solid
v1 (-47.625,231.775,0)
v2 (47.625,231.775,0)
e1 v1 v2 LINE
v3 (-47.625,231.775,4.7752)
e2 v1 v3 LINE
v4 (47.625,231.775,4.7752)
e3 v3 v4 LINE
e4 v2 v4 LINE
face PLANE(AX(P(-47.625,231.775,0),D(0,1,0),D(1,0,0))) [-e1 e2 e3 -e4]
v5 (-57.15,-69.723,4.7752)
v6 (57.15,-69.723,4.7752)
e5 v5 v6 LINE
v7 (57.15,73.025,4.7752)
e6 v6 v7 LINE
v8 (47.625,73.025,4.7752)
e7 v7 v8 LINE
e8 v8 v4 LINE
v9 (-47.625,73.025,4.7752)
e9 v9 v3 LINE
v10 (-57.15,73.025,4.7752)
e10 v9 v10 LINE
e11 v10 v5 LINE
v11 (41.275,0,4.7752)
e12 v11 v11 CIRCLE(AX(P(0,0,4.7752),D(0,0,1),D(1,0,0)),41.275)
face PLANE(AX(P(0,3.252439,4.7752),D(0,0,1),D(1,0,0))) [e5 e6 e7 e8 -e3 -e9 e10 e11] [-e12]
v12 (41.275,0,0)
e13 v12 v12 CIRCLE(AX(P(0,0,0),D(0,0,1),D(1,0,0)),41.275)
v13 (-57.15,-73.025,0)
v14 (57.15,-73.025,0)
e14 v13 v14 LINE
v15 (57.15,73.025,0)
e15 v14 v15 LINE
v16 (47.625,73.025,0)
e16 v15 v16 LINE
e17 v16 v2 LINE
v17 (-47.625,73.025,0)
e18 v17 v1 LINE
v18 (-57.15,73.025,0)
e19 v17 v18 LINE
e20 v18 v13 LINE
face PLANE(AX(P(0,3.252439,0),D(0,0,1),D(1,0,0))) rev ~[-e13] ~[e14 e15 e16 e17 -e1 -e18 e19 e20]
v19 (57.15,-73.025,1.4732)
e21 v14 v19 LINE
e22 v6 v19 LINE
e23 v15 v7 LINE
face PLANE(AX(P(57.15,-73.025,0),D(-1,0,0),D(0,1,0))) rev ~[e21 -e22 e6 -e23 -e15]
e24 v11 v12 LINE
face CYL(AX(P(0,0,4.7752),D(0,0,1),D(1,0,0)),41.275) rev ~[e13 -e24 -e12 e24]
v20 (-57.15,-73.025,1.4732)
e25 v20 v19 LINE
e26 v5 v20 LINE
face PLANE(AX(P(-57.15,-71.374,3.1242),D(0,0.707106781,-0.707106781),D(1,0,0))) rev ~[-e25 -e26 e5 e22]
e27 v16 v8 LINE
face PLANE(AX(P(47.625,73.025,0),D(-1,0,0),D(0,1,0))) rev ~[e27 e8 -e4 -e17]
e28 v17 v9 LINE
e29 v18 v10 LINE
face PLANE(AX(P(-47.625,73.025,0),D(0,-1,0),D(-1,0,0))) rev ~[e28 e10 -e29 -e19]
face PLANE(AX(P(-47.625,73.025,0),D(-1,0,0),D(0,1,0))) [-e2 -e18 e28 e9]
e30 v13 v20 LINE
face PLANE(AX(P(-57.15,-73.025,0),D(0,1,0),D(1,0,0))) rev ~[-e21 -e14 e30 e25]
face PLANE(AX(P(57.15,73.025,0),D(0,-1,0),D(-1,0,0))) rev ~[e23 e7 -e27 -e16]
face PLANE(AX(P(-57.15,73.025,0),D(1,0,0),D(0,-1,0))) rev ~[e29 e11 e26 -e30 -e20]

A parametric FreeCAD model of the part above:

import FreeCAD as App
import Part
import Sketcher
from FreeCAD import Vector
Q = App.Units.Quantity


def edges_at(feature, points):
    """Names of the edges that pass closest to the given points."""
    edges = feature.Shape.Edges
    near = lambda p: min(range(len(edges)), key=lambda i: edges[i].distToShape(Part.Vertex(*p))[0])
    return sorted({f"Edge{near(p) + 1}" for p in points})

doc = App.newDocument("Part")
params = doc.addObject("Spreadsheet::Sheet", "Params")
for row, (alias, value) in enumerate([
    ("sketch1_width", "4.5 in"),
    ("sketch1_width2", "3.75 in"),
    ("sketch1_height", "6.25 in"),
    ("pad1_length", "0.188 in"),
    ("sketch2_diameter", "3.25 in"),
    ("pocket1_length", "1 in"),
    ("chamfer_size", "0.13 in"),
], start=1):
    params.set(f"A{row}", alias)
    params.set(f"B{row}", "=" + value)
    params.setAlias(f"B{row}", alias)

body = doc.addObject("PartDesign::Body", "Body")

# Sketch on XY plane
sketch1 = doc.addObject("Sketcher::SketchObject", "Sketch")
body.addObject(sketch1)
sketch1.AttachmentSupport = (doc.XY_Plane, [""])
sketch1.MapMode = "FlatFace"
sketch1.addGeometry(Part.LineSegment(Vector(57, 73, 0), Vector(48, 73, 0)), False)
sketch1.addGeometry(Part.LineSegment(Vector(48, 73, 0), Vector(48, 232, 0)), False)
sketch1.addGeometry(Part.LineSegment(Vector(48, 232, 0), Vector(-48, 232, 0)), False)
sketch1.addGeometry(Part.LineSegment(Vector(-48, 232, 0), Vector(-48, 73, 0)), False)
sketch1.addGeometry(Part.LineSegment(Vector(-48, 73, 0), Vector(-57, 73, 0)), False)
sketch1.addGeometry(Part.LineSegment(Vector(-57, 73, 0), Vector(-57, -73, 0)), False)
sketch1.addGeometry(Part.LineSegment(Vector(-57, -73, 0), Vector(57, -73, 0)), False)
sketch1.addGeometry(Part.LineSegment(Vector(57, -73, 0), Vector(57, 73, 0)), False)
sketch1.addConstraint(Sketcher.Constraint("Coincident", 0, 2, 1, 1))
sketch1.addConstraint(Sketcher.Constraint("Coincident", 1, 2, 2, 1))
sketch1.addConstraint(Sketcher.Constraint("Coincident", 2, 2, 3, 1))
sketch1.addConstraint(Sketcher.Constraint("Coincident", 3, 2, 4, 1))
sketch1.addConstraint(Sketcher.Constraint("Coincident", 4, 2, 5, 1))
sketch1.addConstraint(Sketcher.Constraint("Coincident", 5, 2, 6, 1))
sketch1.addConstraint(Sketcher.Constraint("Coincident", 6, 2, 7, 1))
sketch1.addConstraint(Sketcher.Constraint("Coincident", 7, 2, 0, 1))
sketch1.addConstraint(Sketcher.Constraint("Horizontal", 0))
sketch1.addConstraint(Sketcher.Constraint("Vertical", 1))
sketch1.addConstraint(Sketcher.Constraint("Horizontal", 2))
sketch1.addConstraint(Sketcher.Constraint("Vertical", 3))
sketch1.addConstraint(Sketcher.Constraint("Horizontal", 4))
sketch1.addConstraint(Sketcher.Constraint("Vertical", 5))
sketch1.addConstraint(Sketcher.Constraint("Horizontal", 6))
sketch1.addConstraint(Sketcher.Constraint("Vertical", 7))
sketch1.addConstraint(Sketcher.Constraint("Symmetric", 4, 2, 6, 2, -1, 1))
sketch1.addConstraint(Sketcher.Constraint("Symmetric", 0, 2, 3, 2, -2))
sketch1.addConstraint(Sketcher.Constraint("DistanceX", 6, 1, 6, 2, Q("4.5 in")))
sketch1.addConstraint(Sketcher.Constraint("DistanceY", 5, 2, 2, 2, Q("12 in")))
sketch1.addConstraint(Sketcher.Constraint("DistanceX", 2, 2, 2, 1, Q("3.75 in")))
sketch1.addConstraint(Sketcher.Constraint("DistanceY", 1, 1, 1, 2, Q("6.25 in")))
sketch1.setExpression("Constraints[18]", "Params.sketch1_width")
sketch1.setExpression("Constraints[20]", "Params.sketch1_width2")
sketch1.setExpression("Constraints[21]", "Params.sketch1_height")
pad1 = doc.addObject("PartDesign::Pad", "Pad")
body.addObject(pad1)
pad1.Profile = sketch1
pad1.setExpression("Length", "Params.pad1_length")

# Sketch on XY plane
sketch2 = doc.addObject("Sketcher::SketchObject", "Sketch001")
body.addObject(sketch2)
sketch2.AttachmentSupport = (doc.XY_Plane, [""])
sketch2.MapMode = "FlatFace"
sketch2.AttachmentOffset = App.Placement(Vector(0, 0, 0.188 * 25.4), App.Rotation())
sketch2.addGeometry(Part.Circle(Vector(0, 0, 0), Vector(0, 0, 1), 41), False)
sketch2.addConstraint(Sketcher.Constraint("Coincident", 0, 3, -1, 1))
sketch2.addConstraint(Sketcher.Constraint("Diameter", 0, Q("3.25 in")))
sketch2.setExpression("Constraints[1]", "Params.sketch2_diameter")
pocket1 = doc.addObject("PartDesign::Pocket", "Pocket")
body.addObject(pocket1)
pocket1.Profile = sketch2
pocket1.setExpression("Length", "Params.pocket1_length")
doc.recompute()

chamfer = doc.addObject("PartDesign::Chamfer", "Chamfer")
body.addObject(chamfer)
chamfer.Base = (pocket1, edges_at(pocket1, [(0, -73.025, 4.775)]))
chamfer.setExpression("Size", "Params.chamfer_size")

doc.recompute()
